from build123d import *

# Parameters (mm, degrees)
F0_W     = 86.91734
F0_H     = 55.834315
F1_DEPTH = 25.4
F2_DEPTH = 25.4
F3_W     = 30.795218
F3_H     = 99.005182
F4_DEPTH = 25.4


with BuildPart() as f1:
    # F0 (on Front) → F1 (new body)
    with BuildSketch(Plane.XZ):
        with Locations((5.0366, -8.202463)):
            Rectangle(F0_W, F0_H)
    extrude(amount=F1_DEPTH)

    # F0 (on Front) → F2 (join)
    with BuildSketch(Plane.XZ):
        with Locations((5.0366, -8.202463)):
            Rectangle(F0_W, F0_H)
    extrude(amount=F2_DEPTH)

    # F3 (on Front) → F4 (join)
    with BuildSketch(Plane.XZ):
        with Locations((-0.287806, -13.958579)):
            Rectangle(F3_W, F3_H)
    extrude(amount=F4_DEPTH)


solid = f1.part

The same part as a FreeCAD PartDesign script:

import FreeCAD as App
import Part
import Sketcher
from FreeCAD import Vector
Q = App.Units.Quantity


def add_polygon(sketch, points):
    """Adds a closed chain of lines whose ends are joined by coincident constraints."""
    first, n = sketch.GeometryCount, len(points)
    for a, b in zip(points, points[1:] + points[:1]):
        sketch.addGeometry(Part.LineSegment(App.Vector(*a, 0), App.Vector(*b, 0)), False)
    for i in range(n):
        sketch.addConstraint(Sketcher.Constraint("Coincident", first + i, 2, first + (i + 1) % n, 1))

doc = App.newDocument("Part")
body = doc.addObject("PartDesign::Body", "Body")

# Sketch on XZ plane
sketch1 = body.newObject("Sketcher::SketchObject", "Sketch")
sketch1.AttachmentSupport = (doc.getObject("XZ_Plane"), [""])
sketch1.MapMode = "FlatFace"
add_polygon(sketch1, [(-38, 20), (-38, -36), (48, -36), (48, 20)])  # lines 0-3
sketch1.addConstraint([
    Sketcher.Constraint("Vertical", 0),
    Sketcher.Constraint("Horizontal", 1),
    Sketcher.Constraint("Vertical", 2),
    Sketcher.Constraint("Horizontal", 3),
    Sketcher.Constraint("DistanceX", 1, 1, 1, 2, Q("86.91734 mm")),
    Sketcher.Constraint("DistanceY", 0, 2, 0, 1, Q("55.834315 mm")),
    Sketcher.Constraint("DistanceX", 0, 2, -1, 1, Q("38.42207 mm")),
    Sketcher.Constraint("DistanceY", 0, 2, -1, 1, Q("36.119621 mm")),
])
pad1 = body.newObject("PartDesign::Pad", "Pad")
pad1.Profile = sketch1
pad1.Length = Q("1 in")

# Sketch on XZ plane
sketch2 = body.newObject("Sketcher::SketchObject", "Sketch001")
sketch2.AttachmentSupport = (doc.getObject("XZ_Plane"), [""])
sketch2.MapMode = "FlatFace"
add_polygon(sketch2, [(-38, 20), (-38, -36), (48, -36), (48, 20)])  # lines 0-3
sketch2.addConstraint([
    Sketcher.Constraint("Vertical", 0),
    Sketcher.Constraint("Horizontal", 1),
    Sketcher.Constraint("Vertical", 2),
    Sketcher.Constraint("Horizontal", 3),
    Sketcher.Constraint("DistanceX", 1, 1, 1, 2, Q("86.91734 mm")),
    Sketcher.Constraint("DistanceY", 0, 2, 0, 1, Q("55.834315 mm")),
    Sketcher.Constraint("DistanceX", 0, 2, -1, 1, Q("38.42207 mm")),
    Sketcher.Constraint("DistanceY", 0, 2, -1, 1, Q("36.119621 mm")),
])
pad2 = body.newObject("PartDesign::Pad", "Pad001")
pad2.Profile = sketch2
pad2.Length = Q("1 in")

# Sketch on XZ plane
sketch3 = body.newObject("Sketcher::SketchObject", "Sketch002")
sketch3.AttachmentSupport = (doc.getObject("XZ_Plane"), [""])
sketch3.MapMode = "FlatFace"
add_polygon(sketch3, [(-16, 36), (-16, -63), (15, -63), (15, 36)])  # lines 0-3
sketch3.addConstraint([
    Sketcher.Constraint("Vertical", 0),
    Sketcher.Constraint("Horizontal", 1),
    Sketcher.Constraint("Vertical", 2),
    Sketcher.Constraint("Horizontal", 3),
    Sketcher.Constraint("DistanceX", 1, 1, 1, 2, Q("30.795218 mm")),
    Sketcher.Constraint("DistanceY", 0, 2, 0, 1, Q("99.005182 mm")),
    Sketcher.Constraint("DistanceY", 0, 2, -1, 1, Q("63.46117 mm")),
    Sketcher.Constraint("DistanceX", 0, 2, -1, 1, Q("15.685415 mm")),
])
pad3 = body.newObject("PartDesign::Pad", "Pad002")
pad3.Profile = sketch3
pad3.Length = Q("1 in")

doc.recompute()
